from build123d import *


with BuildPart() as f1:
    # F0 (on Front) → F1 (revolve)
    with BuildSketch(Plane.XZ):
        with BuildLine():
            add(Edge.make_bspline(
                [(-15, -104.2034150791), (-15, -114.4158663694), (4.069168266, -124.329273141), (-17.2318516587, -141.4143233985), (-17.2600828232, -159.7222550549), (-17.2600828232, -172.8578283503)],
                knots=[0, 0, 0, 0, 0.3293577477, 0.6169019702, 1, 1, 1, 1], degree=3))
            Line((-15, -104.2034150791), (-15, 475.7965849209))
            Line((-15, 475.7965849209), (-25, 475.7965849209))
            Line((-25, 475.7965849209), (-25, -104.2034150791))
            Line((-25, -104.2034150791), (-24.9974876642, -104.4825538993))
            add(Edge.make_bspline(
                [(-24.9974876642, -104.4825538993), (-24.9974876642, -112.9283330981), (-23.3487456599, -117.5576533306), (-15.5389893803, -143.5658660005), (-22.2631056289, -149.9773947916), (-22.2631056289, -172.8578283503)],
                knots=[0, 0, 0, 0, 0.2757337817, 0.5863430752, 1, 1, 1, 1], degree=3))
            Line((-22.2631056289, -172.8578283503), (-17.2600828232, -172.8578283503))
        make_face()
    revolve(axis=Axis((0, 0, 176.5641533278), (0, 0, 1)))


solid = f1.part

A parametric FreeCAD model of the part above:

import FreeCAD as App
import Part
import Sketcher

V = App.Vector

doc = App.newDocument("Part")
params = doc.addObject("Spreadsheet::Sheet", "Params")
for row, (alias, value) in enumerate([
    ("sketch1_width", "10 mm"),
    ("sketch1_height", "580 mm"),
    ("revolution_angle", "360 deg"),
], start=1):
    params.set(f"A{row}", alias)
    params.set(f"B{row}", "=" + value)
    params.setAlias(f"B{row}", alias)

body = doc.addObject("PartDesign::Body", "Body")

# Sketch on XZ plane
sketch1 = body.newObject("Sketcher::SketchObject", "Sketch")
sketch1.AttachmentSupport = (doc.getObject("XZ_Plane"), [""])
sketch1.MapMode = "FlatFace"
sketch1.addGeometry(Part.BSplineCurve([V(-15, -104.203415, 0), V(-15, -114.415866, 0), V(4.069168, -124.329273, 0), V(-17.231852, -141.414323, 0), V(-17.260083, -159.722255, 0), V(-17.260083, -172.857828, 0)], [4, 1, 1, 4], [0, 0.329357748, 0.61690197, 1], False, 3, [1, 1, 1, 1, 1, 1], False), False)
sketch1.addGeometry(Part.LineSegment(V(-15, -104.203415, 0), V(-15, 475.796585, 0)), False)
sketch1.addGeometry(Part.LineSegment(V(-15, 475.796585, 0), V(-25, 475.796585, 0)), False)
sketch1.addGeometry(Part.LineSegment(V(-25, 475.796585, 0), V(-25, -104.203415, 0)), False)
sketch1.addGeometry(Part.LineSegment(V(-25, -104.203415, 0), V(-24.997488, -104.482554, 0)), False)
sketch1.addGeometry(Part.BSplineCurve([V(-24.997488, -104.482554, 0), V(-24.997488, -112.928333, 0), V(-23.348746, -117.557653, 0), V(-15.538989, -143.565866, 0), V(-22.263106, -149.977395, 0), V(-22.263106, -172.857828, 0)], [4, 1, 1, 4], [0, 0.275733782, 0.586343075, 1], False, 3, [1, 1, 1, 1, 1, 1], False), False)
sketch1.addGeometry(Part.LineSegment(V(-22.263106, -172.857828, 0), V(-17.260083, -172.857828, 0)), False)
sketch1.addConstraint(Sketcher.Constraint("Block", 0))
sketch1.addConstraint(Sketcher.Constraint("Block", 5))
sketch1.addConstraint(Sketcher.Constraint("Coincident", 0, 1, 1, 1))
sketch1.addConstraint(Sketcher.Constraint("Coincident", 1, 2, 2, 1))
sketch1.addConstraint(Sketcher.Constraint("Coincident", 2, 2, 3, 1))
sketch1.addConstraint(Sketcher.Constraint("Coincident", 3, 2, 4, 1))
sketch1.addConstraint(Sketcher.Constraint("Coincident", 4, 2, 5, 1))
sketch1.addConstraint(Sketcher.Constraint("Coincident", 5, 2, 6, 1))
sketch1.addConstraint(Sketcher.Constraint("Coincident", 6, 2, 0, 2))
sketch1.addConstraint(Sketcher.Constraint("Vertical", 1))
sketch1.addConstraint(Sketcher.Constraint("Horizontal", 2))
sketch1.addConstraint(Sketcher.Constraint("Vertical", 3))
sketch1.addConstraint(Sketcher.Constraint("Equal", 1, 3))
sketch1.addConstraint(Sketcher.Constraint("DistanceX", 2, 2, 2, 1, 10.0))
sketch1.addConstraint(Sketcher.Constraint("DistanceY", 1, 1, 1, 2, 580.0))
sketch1.setExpression("Constraints[13]", "Params.sketch1_width")
sketch1.setExpression("Constraints[14]", "Params.sketch1_height")
revolution = body.newObject("PartDesign::Revolution", "Revolution")
revolution.Profile = sketch1
revolution.ReferenceAxis = (sketch1, ["V_Axis"])
revolution.setExpression("Angle", "Params.revolution_angle")

doc.recompute()
